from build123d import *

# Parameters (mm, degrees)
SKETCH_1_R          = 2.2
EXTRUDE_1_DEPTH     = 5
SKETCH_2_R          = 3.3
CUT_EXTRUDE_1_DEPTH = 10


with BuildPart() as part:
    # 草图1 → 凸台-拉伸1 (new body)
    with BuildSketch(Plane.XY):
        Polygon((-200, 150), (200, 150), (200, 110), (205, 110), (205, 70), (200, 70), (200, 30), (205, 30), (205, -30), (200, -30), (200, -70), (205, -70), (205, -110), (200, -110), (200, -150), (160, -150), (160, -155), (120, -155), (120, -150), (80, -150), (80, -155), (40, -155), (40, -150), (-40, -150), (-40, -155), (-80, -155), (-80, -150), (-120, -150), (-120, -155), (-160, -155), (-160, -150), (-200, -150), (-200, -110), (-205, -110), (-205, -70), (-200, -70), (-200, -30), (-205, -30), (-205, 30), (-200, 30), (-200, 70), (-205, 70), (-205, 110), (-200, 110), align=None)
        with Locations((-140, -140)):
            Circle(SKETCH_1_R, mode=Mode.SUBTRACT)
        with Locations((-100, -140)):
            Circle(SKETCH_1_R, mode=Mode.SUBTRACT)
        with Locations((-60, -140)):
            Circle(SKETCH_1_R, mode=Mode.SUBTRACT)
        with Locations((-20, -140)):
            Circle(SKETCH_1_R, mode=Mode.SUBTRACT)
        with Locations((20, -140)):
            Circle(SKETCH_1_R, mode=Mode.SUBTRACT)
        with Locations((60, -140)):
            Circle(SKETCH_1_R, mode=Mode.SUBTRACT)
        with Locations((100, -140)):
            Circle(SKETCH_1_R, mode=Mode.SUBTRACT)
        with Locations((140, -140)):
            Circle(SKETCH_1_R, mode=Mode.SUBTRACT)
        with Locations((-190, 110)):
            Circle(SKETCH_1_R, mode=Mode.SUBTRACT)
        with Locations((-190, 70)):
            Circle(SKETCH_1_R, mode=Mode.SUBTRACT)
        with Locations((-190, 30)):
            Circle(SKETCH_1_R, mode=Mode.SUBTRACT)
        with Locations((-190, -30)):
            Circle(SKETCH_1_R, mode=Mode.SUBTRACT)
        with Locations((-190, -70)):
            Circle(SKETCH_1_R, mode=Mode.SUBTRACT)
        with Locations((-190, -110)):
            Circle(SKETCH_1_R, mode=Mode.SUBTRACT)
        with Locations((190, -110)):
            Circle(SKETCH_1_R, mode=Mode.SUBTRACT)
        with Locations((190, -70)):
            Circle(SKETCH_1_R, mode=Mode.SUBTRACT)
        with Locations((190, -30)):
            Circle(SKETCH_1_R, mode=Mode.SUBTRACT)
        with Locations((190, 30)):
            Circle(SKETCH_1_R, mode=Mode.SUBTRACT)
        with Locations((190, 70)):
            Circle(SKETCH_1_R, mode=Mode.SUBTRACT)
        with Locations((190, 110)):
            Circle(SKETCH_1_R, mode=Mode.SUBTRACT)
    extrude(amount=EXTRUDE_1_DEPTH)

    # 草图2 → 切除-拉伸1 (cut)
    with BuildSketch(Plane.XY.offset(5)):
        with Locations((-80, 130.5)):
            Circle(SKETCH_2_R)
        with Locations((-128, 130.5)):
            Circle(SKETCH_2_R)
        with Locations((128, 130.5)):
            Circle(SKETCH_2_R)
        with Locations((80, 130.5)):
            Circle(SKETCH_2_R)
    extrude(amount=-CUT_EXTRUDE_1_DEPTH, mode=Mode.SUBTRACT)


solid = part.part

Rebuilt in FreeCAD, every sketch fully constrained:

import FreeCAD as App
import Part
import Sketcher


def add_polygon(sketch, points):
    """Adds a closed chain of lines whose ends are joined by coincident constraints."""
    first, n = sketch.GeometryCount, len(points)
    for a, b in zip(points, points[1:] + points[:1]):
        sketch.addGeometry(Part.LineSegment(App.Vector(*a, 0), App.Vector(*b, 0)), False)
    for i in range(n):
        sketch.addConstraint(Sketcher.Constraint("Coincident", first + i, 2, first + (i + 1) % n, 1))

doc = App.newDocument("Part")
body = doc.addObject("PartDesign::Body", "Body")

# Sketch on XY plane
sketch1 = body.newObject("Sketcher::SketchObject", "Sketch")
sketch1.AttachmentSupport = (doc.getObject("XY_Plane"), [""])
sketch1.MapMode = "FlatFace"
add_polygon(sketch1, [(200, 150), (-200, 150), (-200, 110), (-205, 110), (-205, 70), (-200, 70), (-200, 30), (-205, 30), (-205, -30), (-200, -30), (-200, -70), (-205, -70), (-205, -110), (-200, -110), (-200, -150), (-160, -150), (-160, -155), (-120, -155), (-120, -150), (-80, -150), (-80, -155), (-40, -155), (-40, -150), (40, -150), (40, -155), (80, -155), (80, -150), (120, -150), (120, -155), (160, -155), (160, -150), (200, -150), (200, -110), (205, -110), (205, -70), (200, -70), (200, -30), (205, -30), (205, 30), (200, 30), (200, 70), (205, 70), (205, 110), (200, 110)])  # lines 0-43
sketch1.addGeometry(Part.Circle(App.Vector(140, -140, 0), App.Vector(0, 0, 1), 2.2), False)  # 44
sketch1.addGeometry(Part.Circle(App.Vector(100, -140, 0), App.Vector(0, 0, 1), 2.2), False)  # 45
sketch1.addGeometry(Part.Circle(App.Vector(190, -110, 0), App.Vector(0, 0, 1), 2.2), False)  # 46
sketch1.addGeometry(Part.Circle(App.Vector(60, -140, 0), App.Vector(0, 0, 1), 2.2), False)  # 47
sketch1.addGeometry(Part.Circle(App.Vector(20, -140, 0), App.Vector(0, 0, 1), 2.2), False)  # 48
sketch1.addGeometry(Part.Circle(App.Vector(190, -70, 0), App.Vector(0, 0, 1), 2.2), False)  # 49
sketch1.addGeometry(Part.Circle(App.Vector(190, -30, 0), App.Vector(0, 0, 1), 2.2), False)  # 50
sketch1.addGeometry(Part.Circle(App.Vector(-20, -140, 0), App.Vector(0, 0, 1), 2.2), False)  # 51
sketch1.addGeometry(Part.Circle(App.Vector(-60, -140, 0), App.Vector(0, 0, 1), 2.2), False)  # 52
sketch1.addGeometry(Part.Circle(App.Vector(-100, -140, 0), App.Vector(0, 0, 1), 2.2), False)  # 53
sketch1.addGeometry(Part.Circle(App.Vector(-140, -140, 0), App.Vector(0, 0, 1), 2.2), False)  # 54
sketch1.addGeometry(Part.Circle(App.Vector(-190, -110, 0), App.Vector(0, 0, 1), 2.2), False)  # 55
sketch1.addGeometry(Part.Circle(App.Vector(-190, -70, 0), App.Vector(0, 0, 1), 2.2), False)  # 56
sketch1.addGeometry(Part.Circle(App.Vector(-190, -30, 0), App.Vector(0, 0, 1), 2.2), False)  # 57
sketch1.addGeometry(Part.Circle(App.Vector(190, 30, 0), App.Vector(0, 0, 1), 2.2), False)  # 58
sketch1.addGeometry(Part.Circle(App.Vector(190, 70, 0), App.Vector(0, 0, 1), 2.2), False)  # 59
sketch1.addGeometry(Part.Circle(App.Vector(190, 110, 0), App.Vector(0, 0, 1), 2.2), False)  # 60
sketch1.addGeometry(Part.Circle(App.Vector(-190, 30, 0), App.Vector(0, 0, 1), 2.2), False)  # 61
sketch1.addGeometry(Part.Circle(App.Vector(-190, 70, 0), App.Vector(0, 0, 1), 2.2), False)  # 62
sketch1.addGeometry(Part.Circle(App.Vector(-190, 110, 0), App.Vector(0, 0, 1), 2.2), False)  # 63
sketch1.addConstraint([
    Sketcher.Constraint("Horizontal", 0),
    Sketcher.Constraint("Vertical", 1),
    Sketcher.Constraint("Horizontal", 2),
    Sketcher.Constraint("Vertical", 3),
    Sketcher.Constraint("Horizontal", 4),
    Sketcher.Constraint("Vertical", 5),
    Sketcher.Constraint("Horizontal", 6),
    Sketcher.Constraint("Vertical", 7),
    Sketcher.Constraint("Horizontal", 8),
    Sketcher.Constraint("Vertical", 9),
    Sketcher.Constraint("Horizontal", 10),
    Sketcher.Constraint("Vertical", 11),
    Sketcher.Constraint("Horizontal", 12),
    Sketcher.Constraint("Vertical", 13),
    Sketcher.Constraint("Horizontal", 14),
    Sketcher.Constraint("Vertical", 15),
    Sketcher.Constraint("Horizontal", 16),
    Sketcher.Constraint("Vertical", 17),
    Sketcher.Constraint("Horizontal", 18),
    Sketcher.Constraint("Vertical", 19),
    Sketcher.Constraint("Horizontal", 20),
    Sketcher.Constraint("Vertical", 21),
    Sketcher.Constraint("Horizontal", 22),
    Sketcher.Constraint("Vertical", 23),
    Sketcher.Constraint("Horizontal", 24),
    Sketcher.Constraint("Vertical", 25),
    Sketcher.Constraint("Horizontal", 26),
    Sketcher.Constraint("Vertical", 27),
    Sketcher.Constraint("Horizontal", 28),
    Sketcher.Constraint("Vertical", 29),
    Sketcher.Constraint("Horizontal", 30),
    Sketcher.Constraint("Vertical", 31),
    Sketcher.Constraint("Horizontal", 32),
    Sketcher.Constraint("Vertical", 33),
    Sketcher.Constraint("Horizontal", 34),
    Sketcher.Constraint("Vertical", 35),
    Sketcher.Constraint("Horizontal", 36),
    Sketcher.Constraint("Vertical", 37),
    Sketcher.Constraint("Horizontal", 38),
    Sketcher.Constraint("Vertical", 39),
    Sketcher.Constraint("Horizontal", 40),
    Sketcher.Constraint("Vertical", 41),
    Sketcher.Constraint("Horizontal", 42),
    Sketcher.Constraint("Vertical", 43),
    Sketcher.Constraint("Equal", 44, 45),
    Sketcher.Constraint("Equal", 45, 46),
    Sketcher.Constraint("Equal", 46, 47),
    Sketcher.Constraint("Equal", 47, 48),
    Sketcher.Constraint("Equal", 48, 49),
    Sketcher.Constraint("Equal", 49, 50),
    Sketcher.Constraint("Equal", 50, 51),
    Sketcher.Constraint("Equal", 51, 52),
    Sketcher.Constraint("Equal", 52, 53),
    Sketcher.Constraint("Equal", 53, 54),
    Sketcher.Constraint("Equal", 54, 55),
    Sketcher.Constraint("Equal", 55, 56),
    Sketcher.Constraint("Equal", 56, 57),
    Sketcher.Constraint("Equal", 57, 58),
    Sketcher.Constraint("Equal", 58, 59),
    Sketcher.Constraint("Equal", 59, 60),
    Sketcher.Constraint("Equal", 60, 61),
    Sketcher.Constraint("Equal", 61, 62),
    Sketcher.Constraint("Equal", 62, 63),
    Sketcher.Constraint("Symmetric", 57, 3, 58, 3, -1, 1),
    Sketcher.Constraint("Symmetric", 56, 3, 59, 3, -1, 1),
    Sketcher.Constraint("Symmetric", 55, 3, 60, 3, -1, 1),
    Sketcher.Constraint("Symmetric", 50, 3, 61, 3, -1, 1),
    Sketcher.Constraint("Symmetric", 49, 3, 62, 3, -1, 1),
    Sketcher.Constraint("Symmetric", 46, 3, 63, 3, -1, 1),
    Sketcher.Constraint("Symmetric", 0, 2, 30, 2, -1, 1),
    Sketcher.Constraint("Symmetric", 2, 2, 32, 2, -1, 1),
    Sketcher.Constraint("Symmetric", 4, 2, 34, 2, -1, 1),
    Sketcher.Constraint("Symmetric", 6, 2, 36, 2, -1, 1),
    Sketcher.Constraint("Symmetric", 8, 2, 38, 2, -1, 1),
    Sketcher.Constraint("Symmetric", 10, 2, 40, 2, -1, 1),
    Sketcher.Constraint("Symmetric", 12, 2, 42, 2, -1, 1),
    Sketcher.Constraint("Symmetric", 48, 3, 51, 3, -2),
    Sketcher.Constraint("Symmetric", 47, 3, 52, 3, -2),
    Sketcher.Constraint("Symmetric", 45, 3, 53, 3, -2),
    Sketcher.Constraint("Symmetric", 44, 3, 54, 3, -2),
    Sketcher.Constraint("Symmetric", 46, 3, 55, 3, -2),
    Sketcher.Constraint("Symmetric", 49, 3, 56, 3, -2),
    Sketcher.Constraint("Symmetric", 50, 3, 57, 3, -2),
    Sketcher.Constraint("Symmetric", 20, 2, 23, 2, -2),
    Sketcher.Constraint("Symmetric", 18, 2, 25, 2, -2),
    Sketcher.Constraint("Symmetric", 16, 2, 27, 2, -2),
    Sketcher.Constraint("Symmetric", 14, 2, 29, 2, -2),
    Sketcher.Constraint("Symmetric", 12, 2, 31, 2, -2),
    Sketcher.Constraint("Symmetric", 10, 2, 33, 2, -2),
    Sketcher.Constraint("Symmetric", 8, 2, 35, 2, -2),
    Sketcher.Constraint("Horizontal", 44, 3, 45, 3),
    Sketcher.Constraint("Horizontal", 45, 3, 47, 3),
    Sketcher.Constraint("Horizontal", 47, 3, 48, 3),
    Sketcher.Constraint("Horizontal", 63, 3, 1, 2),
    Sketcher.Constraint("Horizontal", 62, 3, 3, 2),
    Sketcher.Constraint("Horizontal", 61, 3, 5, 2),
    Sketcher.Constraint("Horizontal", 14, 2, 17, 2),
    Sketcher.Constraint("Horizontal", 16, 2, 19, 2),
    Sketcher.Constraint("Horizontal", 18, 2, 21, 2),
    Sketcher.Constraint("Vertical", 46, 3, 49, 3),
    Sketcher.Constraint("Vertical", 49, 3, 50, 3),
    Sketcher.Constraint("Vertical", 1, 2, 4, 2),
    Sketcher.Constraint("Vertical", 3, 2, 6, 2),
    Sketcher.Constraint("Equal", 14, 16),
    Sketcher.Constraint("Equal", 16, 18),
    Sketcher.Constraint("Equal", 18, 20),
    Sketcher.Constraint("Equal", 30, 1),
    Sketcher.Constraint("Equal", 1, 3),
    Sketcher.Constraint("Equal", 3, 5),
    Sketcher.Constraint("Equal", 42, 15),
    Sketcher.Constraint("Diameter", 44, 4.4),
    Sketcher.Constraint("DistanceX", 0, 2, 0, 1, 400.0),
    Sketcher.Constraint("DistanceX", 2, 2, 2, 1, 5.0),
    Sketcher.Constraint("DistanceX", 14, 1, 14, 2, 40.0),
    Sketcher.Constraint("DistanceY", 7, 2, 7, 1, 60.0),
    Sketcher.Constraint("DistanceX", -1, 1, 44, 3, 140.0),
    Sketcher.Constraint("DistanceY", 44, 3, -1, 1, 140.0),
    Sketcher.Constraint("DistanceX", -1, 1, 45, 3, 100.0),
    Sketcher.Constraint("DistanceX", -1, 1, 46, 3, 190.0),
    Sketcher.Constraint("DistanceX", -1, 1, 47, 3, 60.0),
    Sketcher.Constraint("DistanceX", -1, 1, 48, 3, 20.0),
])
pad1 = body.newObject("PartDesign::Pad", "Pad")
pad1.Profile = sketch1
pad1.Length = 5

# Sketch on XY plane
sketch2 = body.newObject("Sketcher::SketchObject", "Sketch001")
sketch2.AttachmentSupport = (doc.getObject("XY_Plane"), [""])
sketch2.MapMode = "FlatFace"
sketch2.AttachmentOffset = App.Placement(App.Vector(0, 0, 5), App.Rotation())
sketch2.addGeometry([
    Part.Circle(App.Vector(-80, 130.5, 0), App.Vector(0, 0, 1), 3.3),
    Part.Circle(App.Vector(-128, 130.5, 0), App.Vector(0, 0, 1), 3.3),
    Part.Circle(App.Vector(128, 130.5, 0), App.Vector(0, 0, 1), 3.3),
    Part.Circle(App.Vector(80, 130.5, 0), App.Vector(0, 0, 1), 3.3),
], False)
sketch2.addConstraint([
    Sketcher.Constraint("Equal", 0, 1),
    Sketcher.Constraint("Equal", 1, 2),
    Sketcher.Constraint("Equal", 2, 3),
    Sketcher.Constraint("Symmetric", 1, 3, 2, 3, -2),
    Sketcher.Constraint("Symmetric", 0, 3, 3, 3, -2),
    Sketcher.Constraint("Horizontal", 0, 3, 1, 3),
    Sketcher.Constraint("Diameter", 0, 6.6),
    Sketcher.Constraint("DistanceX", 0, 3, -1, 1, 80.0),
    Sketcher.Constraint("DistanceX", 1, 3, -1, 1, 128.0),
    Sketcher.Constraint("DistanceY", -1, 1, 0, 3, 130.5),
])
pocket1 = body.newObject("PartDesign::Pocket", "Pocket")
pocket1.Profile = sketch2
pocket1.Length = 10

doc.recompute()
